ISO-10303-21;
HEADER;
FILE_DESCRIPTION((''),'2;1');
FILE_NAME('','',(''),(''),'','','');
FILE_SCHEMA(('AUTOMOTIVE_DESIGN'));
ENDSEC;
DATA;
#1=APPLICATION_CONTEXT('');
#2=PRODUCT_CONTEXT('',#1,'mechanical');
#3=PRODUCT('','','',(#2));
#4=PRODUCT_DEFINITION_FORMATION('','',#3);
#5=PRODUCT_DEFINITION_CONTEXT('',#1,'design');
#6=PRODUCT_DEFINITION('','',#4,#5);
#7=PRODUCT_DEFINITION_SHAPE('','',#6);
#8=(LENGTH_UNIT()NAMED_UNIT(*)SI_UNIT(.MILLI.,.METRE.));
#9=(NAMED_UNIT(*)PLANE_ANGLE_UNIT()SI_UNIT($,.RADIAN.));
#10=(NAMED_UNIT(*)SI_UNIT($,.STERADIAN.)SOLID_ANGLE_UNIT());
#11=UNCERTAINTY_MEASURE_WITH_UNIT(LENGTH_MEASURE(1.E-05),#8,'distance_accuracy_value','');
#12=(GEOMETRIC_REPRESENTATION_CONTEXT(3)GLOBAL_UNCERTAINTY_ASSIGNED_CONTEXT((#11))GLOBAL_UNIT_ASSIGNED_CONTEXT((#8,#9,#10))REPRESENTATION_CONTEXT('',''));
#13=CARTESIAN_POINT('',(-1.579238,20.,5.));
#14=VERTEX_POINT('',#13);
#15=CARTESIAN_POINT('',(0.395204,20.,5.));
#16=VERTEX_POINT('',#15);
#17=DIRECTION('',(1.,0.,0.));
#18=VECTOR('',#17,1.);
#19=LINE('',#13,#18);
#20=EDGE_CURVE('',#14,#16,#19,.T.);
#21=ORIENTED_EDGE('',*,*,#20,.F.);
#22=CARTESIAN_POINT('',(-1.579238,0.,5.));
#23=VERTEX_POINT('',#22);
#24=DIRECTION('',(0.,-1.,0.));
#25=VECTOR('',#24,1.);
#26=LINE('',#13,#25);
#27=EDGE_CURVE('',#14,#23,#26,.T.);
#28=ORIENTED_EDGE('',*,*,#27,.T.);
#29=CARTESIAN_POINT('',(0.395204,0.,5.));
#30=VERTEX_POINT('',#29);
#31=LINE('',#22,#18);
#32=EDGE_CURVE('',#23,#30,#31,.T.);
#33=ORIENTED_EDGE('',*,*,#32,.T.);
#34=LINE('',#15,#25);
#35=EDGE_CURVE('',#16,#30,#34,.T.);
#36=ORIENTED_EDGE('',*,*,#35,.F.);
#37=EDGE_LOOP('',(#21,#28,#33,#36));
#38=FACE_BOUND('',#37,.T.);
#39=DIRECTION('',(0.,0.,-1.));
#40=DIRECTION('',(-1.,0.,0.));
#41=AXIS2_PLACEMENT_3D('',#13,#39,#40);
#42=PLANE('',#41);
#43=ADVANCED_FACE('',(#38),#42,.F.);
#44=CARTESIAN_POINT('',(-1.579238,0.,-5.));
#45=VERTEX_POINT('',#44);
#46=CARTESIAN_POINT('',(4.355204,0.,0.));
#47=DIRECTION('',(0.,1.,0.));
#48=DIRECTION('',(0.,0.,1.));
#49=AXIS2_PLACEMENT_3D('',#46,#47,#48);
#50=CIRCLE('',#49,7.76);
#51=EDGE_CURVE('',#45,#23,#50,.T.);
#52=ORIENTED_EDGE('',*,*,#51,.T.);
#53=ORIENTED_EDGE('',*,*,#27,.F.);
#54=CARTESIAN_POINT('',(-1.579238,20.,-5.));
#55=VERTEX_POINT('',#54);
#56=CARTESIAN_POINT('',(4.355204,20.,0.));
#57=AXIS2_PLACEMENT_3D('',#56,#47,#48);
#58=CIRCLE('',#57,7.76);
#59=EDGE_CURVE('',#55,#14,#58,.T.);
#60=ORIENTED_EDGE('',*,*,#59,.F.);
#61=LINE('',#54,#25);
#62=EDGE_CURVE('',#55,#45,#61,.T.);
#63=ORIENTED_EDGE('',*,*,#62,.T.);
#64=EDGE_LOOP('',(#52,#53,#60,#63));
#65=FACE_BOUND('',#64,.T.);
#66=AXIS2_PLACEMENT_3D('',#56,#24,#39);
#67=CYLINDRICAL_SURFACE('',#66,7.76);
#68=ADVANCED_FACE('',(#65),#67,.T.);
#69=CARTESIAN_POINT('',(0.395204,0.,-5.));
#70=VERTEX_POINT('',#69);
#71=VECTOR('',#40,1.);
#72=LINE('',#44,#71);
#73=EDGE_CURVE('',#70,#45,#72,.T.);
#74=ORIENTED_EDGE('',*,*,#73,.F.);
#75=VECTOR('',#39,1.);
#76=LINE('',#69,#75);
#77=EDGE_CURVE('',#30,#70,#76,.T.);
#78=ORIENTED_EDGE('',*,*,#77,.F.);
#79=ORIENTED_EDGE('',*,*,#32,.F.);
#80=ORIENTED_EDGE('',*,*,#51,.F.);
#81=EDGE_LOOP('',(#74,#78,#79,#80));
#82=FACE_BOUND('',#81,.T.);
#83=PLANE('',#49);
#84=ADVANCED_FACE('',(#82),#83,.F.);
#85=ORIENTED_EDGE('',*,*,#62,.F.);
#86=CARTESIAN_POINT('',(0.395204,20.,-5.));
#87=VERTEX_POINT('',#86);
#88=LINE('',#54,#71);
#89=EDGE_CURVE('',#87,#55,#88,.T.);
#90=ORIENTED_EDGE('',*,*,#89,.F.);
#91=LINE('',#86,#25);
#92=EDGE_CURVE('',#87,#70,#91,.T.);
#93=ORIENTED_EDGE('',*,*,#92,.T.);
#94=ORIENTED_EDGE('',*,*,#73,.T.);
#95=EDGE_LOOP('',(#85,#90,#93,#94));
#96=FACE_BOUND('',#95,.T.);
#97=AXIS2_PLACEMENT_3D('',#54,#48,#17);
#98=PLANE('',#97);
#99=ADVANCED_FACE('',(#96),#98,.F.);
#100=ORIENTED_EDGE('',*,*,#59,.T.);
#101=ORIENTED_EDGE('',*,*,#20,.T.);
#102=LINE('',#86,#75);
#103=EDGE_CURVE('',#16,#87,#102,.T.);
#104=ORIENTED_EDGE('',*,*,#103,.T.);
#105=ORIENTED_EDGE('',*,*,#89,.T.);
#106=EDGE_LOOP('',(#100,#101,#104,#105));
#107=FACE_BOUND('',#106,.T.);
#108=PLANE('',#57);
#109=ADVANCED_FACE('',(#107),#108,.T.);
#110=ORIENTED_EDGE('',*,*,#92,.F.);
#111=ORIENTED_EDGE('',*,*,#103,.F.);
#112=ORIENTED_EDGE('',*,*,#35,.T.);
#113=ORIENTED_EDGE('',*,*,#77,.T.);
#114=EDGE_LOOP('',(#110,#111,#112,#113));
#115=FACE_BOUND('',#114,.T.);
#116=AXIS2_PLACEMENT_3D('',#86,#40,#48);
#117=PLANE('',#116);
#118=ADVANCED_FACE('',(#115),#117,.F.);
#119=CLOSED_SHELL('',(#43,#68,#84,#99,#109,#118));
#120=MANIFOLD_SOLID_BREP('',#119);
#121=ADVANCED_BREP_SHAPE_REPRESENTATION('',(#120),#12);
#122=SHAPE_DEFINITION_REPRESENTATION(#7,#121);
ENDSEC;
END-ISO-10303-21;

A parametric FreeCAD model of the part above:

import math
import FreeCAD as App
import Part
import Sketcher

doc = App.newDocument("Part")
body = doc.addObject("PartDesign::Body", "Body")

sketch1 = doc.addObject("Sketcher::SketchObject", "Sketch")
body.addObject(sketch1)
sketch1.AttachmentSupport = (doc.XZ_Plane, [""])
sketch1.MapMode = "FlatFace"
sketch1.addGeometry(Part.LineSegment(App.Vector(0.4, -5, 0), App.Vector(-1.6, -5, 0)), False)
sketch1.addGeometry(Part.ArcOfCircle(Part.Circle(App.Vector(4.4, 0, 0), App.Vector(0, 0, 1), 7.8), math.radians(140), math.radians(220)), False)
sketch1.addGeometry(Part.LineSegment(App.Vector(-1.6, 5, 0), App.Vector(0.4, 5, 0)), False)
sketch1.addGeometry(Part.LineSegment(App.Vector(0.4, 5, 0), App.Vector(0.4, -5, 0)), False)
sketch1.addConstraint(Sketcher.Constraint("Coincident", 0, 2, 1, 2))
sketch1.addConstraint(Sketcher.Constraint("Coincident", 1, 1, 2, 1))
sketch1.addConstraint(Sketcher.Constraint("Coincident", 2, 2, 3, 1))
sketch1.addConstraint(Sketcher.Constraint("Coincident", 3, 2, 0, 1))
sketch1.addConstraint(Sketcher.Constraint("Horizontal", 0))
sketch1.addConstraint(Sketcher.Constraint("Horizontal", 2))
sketch1.addConstraint(Sketcher.Constraint("Vertical", 3))
sketch1.addConstraint(Sketcher.Constraint("Symmetric", 0, 2, 1, 1, -1))
sketch1.addConstraint(Sketcher.Constraint("DistanceY", 3, 2, 3, 1, 10.0))
sketch1.addConstraint(Sketcher.Constraint("Radius", 1, 7.76))
sketch1.addConstraint(Sketcher.Constraint("DistanceX", 2, 2, 1, 3, 3.96))
sketch1.addConstraint(Sketcher.Constraint("DistanceX", -1, 1, 1, 3, 4.355204))
pad1 = doc.addObject("PartDesign::Pad", "Pad")
body.addObject(pad1)
pad1.Profile = sketch1
pad1.Length = 20
pad1.Reversed = True

doc.recompute()
